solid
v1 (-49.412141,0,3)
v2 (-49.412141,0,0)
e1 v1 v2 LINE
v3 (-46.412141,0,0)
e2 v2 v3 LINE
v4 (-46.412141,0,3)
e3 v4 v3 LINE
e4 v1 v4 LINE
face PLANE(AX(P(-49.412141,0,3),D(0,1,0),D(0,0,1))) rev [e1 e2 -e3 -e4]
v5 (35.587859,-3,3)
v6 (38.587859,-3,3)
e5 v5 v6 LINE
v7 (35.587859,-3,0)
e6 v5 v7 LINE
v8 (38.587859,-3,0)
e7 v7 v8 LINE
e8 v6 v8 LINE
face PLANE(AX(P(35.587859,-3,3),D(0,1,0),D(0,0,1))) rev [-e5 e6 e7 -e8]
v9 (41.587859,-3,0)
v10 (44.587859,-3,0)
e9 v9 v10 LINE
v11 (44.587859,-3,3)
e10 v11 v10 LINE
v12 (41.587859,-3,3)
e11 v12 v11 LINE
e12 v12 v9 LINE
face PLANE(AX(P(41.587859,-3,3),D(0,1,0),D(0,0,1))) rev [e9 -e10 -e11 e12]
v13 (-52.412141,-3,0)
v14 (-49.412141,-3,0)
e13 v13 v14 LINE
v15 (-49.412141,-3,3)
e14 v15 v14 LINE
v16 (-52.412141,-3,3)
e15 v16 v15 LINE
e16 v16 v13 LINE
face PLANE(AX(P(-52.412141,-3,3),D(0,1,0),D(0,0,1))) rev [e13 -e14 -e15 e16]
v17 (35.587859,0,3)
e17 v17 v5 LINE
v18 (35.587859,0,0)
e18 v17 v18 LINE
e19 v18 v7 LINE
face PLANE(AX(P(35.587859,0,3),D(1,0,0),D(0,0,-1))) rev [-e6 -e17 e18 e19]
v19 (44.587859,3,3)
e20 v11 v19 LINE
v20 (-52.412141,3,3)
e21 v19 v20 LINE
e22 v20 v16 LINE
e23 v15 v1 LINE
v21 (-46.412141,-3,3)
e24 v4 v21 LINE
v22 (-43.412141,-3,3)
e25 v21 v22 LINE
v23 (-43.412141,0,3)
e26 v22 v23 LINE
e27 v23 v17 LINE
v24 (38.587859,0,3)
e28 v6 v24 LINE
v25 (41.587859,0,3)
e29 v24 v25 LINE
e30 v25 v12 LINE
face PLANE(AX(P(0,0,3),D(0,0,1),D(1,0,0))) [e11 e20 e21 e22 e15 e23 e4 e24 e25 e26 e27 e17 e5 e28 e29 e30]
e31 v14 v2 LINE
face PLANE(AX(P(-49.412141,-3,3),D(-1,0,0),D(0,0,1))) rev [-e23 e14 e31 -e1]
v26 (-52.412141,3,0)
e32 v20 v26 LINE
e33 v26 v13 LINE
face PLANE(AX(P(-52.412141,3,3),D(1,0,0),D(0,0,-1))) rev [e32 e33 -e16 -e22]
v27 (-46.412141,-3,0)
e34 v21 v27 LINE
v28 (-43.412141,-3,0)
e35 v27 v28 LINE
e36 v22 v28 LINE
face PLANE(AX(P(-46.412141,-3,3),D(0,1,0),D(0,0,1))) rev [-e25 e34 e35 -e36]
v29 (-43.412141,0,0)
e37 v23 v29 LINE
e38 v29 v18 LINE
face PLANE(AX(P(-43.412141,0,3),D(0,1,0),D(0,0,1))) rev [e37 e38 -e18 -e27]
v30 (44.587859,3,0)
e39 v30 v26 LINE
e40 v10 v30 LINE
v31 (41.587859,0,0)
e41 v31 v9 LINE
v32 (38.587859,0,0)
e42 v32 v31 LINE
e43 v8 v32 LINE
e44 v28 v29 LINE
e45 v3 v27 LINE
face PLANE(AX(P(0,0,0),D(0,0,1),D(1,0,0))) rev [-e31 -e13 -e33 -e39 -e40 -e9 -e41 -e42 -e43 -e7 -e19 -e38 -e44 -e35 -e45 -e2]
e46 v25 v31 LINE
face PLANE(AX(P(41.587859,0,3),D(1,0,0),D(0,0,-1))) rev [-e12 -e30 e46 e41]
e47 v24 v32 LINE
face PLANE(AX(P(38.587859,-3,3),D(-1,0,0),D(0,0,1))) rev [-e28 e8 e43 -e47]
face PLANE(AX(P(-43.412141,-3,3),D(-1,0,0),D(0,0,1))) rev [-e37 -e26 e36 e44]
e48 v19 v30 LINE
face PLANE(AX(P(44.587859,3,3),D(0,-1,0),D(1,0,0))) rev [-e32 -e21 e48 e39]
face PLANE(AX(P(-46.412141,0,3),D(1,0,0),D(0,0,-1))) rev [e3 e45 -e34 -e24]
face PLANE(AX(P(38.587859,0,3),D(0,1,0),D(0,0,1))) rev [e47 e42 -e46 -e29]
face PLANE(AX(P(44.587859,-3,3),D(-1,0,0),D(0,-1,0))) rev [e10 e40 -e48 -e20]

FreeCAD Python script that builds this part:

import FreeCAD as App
import Part
import Sketcher
Q = App.Units.Quantity


def add_polygon(sketch, points):
    """Adds a closed chain of lines whose ends are joined by coincident constraints."""
    first, n = sketch.GeometryCount, len(points)
    for a, b in zip(points, points[1:] + points[:1]):
        sketch.addGeometry(Part.LineSegment(App.Vector(*a, 0), App.Vector(*b, 0)), False)
    for i in range(n):
        sketch.addConstraint(Sketcher.Constraint("Coincident", first + i, 2, first + (i + 1) % n, 1))

doc = App.newDocument("Part")
body = doc.addObject("PartDesign::Body", "Body")

sketch1 = body.newObject("Sketcher::SketchObject", "Sketch")
sketch1.AttachmentSupport = (doc.getObject("XY_Plane"), [""])
sketch1.MapMode = "FlatFace"
add_polygon(sketch1, [(-43.4, 0), (35.6, 0), (35.6, -3), (38.6, -3), (38.6, 0), (41.6, 0), (41.6, -3), (44.6, -3), (44.6, 3), (-52.4, 3), (-52.4, -3), (-49.4, -3), (-49.4, 0), (-46.4, 0), (-46.4, -3), (-43.4, -3)])
sketch1.addConstraint([
    Sketcher.Constraint("Horizontal", 0),
    Sketcher.Constraint("Vertical", 1),
    Sketcher.Constraint("Horizontal", 2),
    Sketcher.Constraint("Vertical", 3),
    Sketcher.Constraint("Horizontal", 4),
    Sketcher.Constraint("Vertical", 5),
    Sketcher.Constraint("Horizontal", 6),
    Sketcher.Constraint("Vertical", 7),
    Sketcher.Constraint("Horizontal", 8),
    Sketcher.Constraint("Vertical", 9),
    Sketcher.Constraint("Horizontal", 10),
    Sketcher.Constraint("Vertical", 11),
    Sketcher.Constraint("Horizontal", 12),
    Sketcher.Constraint("Vertical", 13),
    Sketcher.Constraint("Horizontal", 14),
    Sketcher.Constraint("Vertical", 15),
    Sketcher.Constraint("PointOnObject", 0, 2, -1),
    Sketcher.Constraint("PointOnObject", 3, 2, -1),
    Sketcher.Constraint("PointOnObject", 11, 2, -1),
    Sketcher.Constraint("Horizontal", 2, 2, 5, 2),
    Sketcher.Constraint("Horizontal", 6, 2, 9, 2),
    Sketcher.Constraint("Horizontal", 10, 2, 13, 2),
    Sketcher.Constraint("Equal", 2, 4),
    Sketcher.Constraint("Equal", 4, 6),
    Sketcher.Constraint("Equal", 6, 10),
    Sketcher.Constraint("Equal", 10, 12),
    Sketcher.Constraint("Equal", 12, 14),
    Sketcher.Constraint("Equal", 14, 1),
    Sketcher.Constraint("DistanceX", 0, 1, 0, 2, Q("79 mm")),
    Sketcher.Constraint("DistanceX", 2, 1, 2, 2, Q("3 mm")),
    Sketcher.Constraint("DistanceY", 7, 1, 7, 2, Q("6 mm")),
    Sketcher.Constraint("DistanceX", -1, 1, 0, 2, Q("35.587859 mm")),
])
pad1 = body.newObject("PartDesign::Pad", "Pad")
pad1.Profile = sketch1
pad1.Length = 3

doc.recompute()
